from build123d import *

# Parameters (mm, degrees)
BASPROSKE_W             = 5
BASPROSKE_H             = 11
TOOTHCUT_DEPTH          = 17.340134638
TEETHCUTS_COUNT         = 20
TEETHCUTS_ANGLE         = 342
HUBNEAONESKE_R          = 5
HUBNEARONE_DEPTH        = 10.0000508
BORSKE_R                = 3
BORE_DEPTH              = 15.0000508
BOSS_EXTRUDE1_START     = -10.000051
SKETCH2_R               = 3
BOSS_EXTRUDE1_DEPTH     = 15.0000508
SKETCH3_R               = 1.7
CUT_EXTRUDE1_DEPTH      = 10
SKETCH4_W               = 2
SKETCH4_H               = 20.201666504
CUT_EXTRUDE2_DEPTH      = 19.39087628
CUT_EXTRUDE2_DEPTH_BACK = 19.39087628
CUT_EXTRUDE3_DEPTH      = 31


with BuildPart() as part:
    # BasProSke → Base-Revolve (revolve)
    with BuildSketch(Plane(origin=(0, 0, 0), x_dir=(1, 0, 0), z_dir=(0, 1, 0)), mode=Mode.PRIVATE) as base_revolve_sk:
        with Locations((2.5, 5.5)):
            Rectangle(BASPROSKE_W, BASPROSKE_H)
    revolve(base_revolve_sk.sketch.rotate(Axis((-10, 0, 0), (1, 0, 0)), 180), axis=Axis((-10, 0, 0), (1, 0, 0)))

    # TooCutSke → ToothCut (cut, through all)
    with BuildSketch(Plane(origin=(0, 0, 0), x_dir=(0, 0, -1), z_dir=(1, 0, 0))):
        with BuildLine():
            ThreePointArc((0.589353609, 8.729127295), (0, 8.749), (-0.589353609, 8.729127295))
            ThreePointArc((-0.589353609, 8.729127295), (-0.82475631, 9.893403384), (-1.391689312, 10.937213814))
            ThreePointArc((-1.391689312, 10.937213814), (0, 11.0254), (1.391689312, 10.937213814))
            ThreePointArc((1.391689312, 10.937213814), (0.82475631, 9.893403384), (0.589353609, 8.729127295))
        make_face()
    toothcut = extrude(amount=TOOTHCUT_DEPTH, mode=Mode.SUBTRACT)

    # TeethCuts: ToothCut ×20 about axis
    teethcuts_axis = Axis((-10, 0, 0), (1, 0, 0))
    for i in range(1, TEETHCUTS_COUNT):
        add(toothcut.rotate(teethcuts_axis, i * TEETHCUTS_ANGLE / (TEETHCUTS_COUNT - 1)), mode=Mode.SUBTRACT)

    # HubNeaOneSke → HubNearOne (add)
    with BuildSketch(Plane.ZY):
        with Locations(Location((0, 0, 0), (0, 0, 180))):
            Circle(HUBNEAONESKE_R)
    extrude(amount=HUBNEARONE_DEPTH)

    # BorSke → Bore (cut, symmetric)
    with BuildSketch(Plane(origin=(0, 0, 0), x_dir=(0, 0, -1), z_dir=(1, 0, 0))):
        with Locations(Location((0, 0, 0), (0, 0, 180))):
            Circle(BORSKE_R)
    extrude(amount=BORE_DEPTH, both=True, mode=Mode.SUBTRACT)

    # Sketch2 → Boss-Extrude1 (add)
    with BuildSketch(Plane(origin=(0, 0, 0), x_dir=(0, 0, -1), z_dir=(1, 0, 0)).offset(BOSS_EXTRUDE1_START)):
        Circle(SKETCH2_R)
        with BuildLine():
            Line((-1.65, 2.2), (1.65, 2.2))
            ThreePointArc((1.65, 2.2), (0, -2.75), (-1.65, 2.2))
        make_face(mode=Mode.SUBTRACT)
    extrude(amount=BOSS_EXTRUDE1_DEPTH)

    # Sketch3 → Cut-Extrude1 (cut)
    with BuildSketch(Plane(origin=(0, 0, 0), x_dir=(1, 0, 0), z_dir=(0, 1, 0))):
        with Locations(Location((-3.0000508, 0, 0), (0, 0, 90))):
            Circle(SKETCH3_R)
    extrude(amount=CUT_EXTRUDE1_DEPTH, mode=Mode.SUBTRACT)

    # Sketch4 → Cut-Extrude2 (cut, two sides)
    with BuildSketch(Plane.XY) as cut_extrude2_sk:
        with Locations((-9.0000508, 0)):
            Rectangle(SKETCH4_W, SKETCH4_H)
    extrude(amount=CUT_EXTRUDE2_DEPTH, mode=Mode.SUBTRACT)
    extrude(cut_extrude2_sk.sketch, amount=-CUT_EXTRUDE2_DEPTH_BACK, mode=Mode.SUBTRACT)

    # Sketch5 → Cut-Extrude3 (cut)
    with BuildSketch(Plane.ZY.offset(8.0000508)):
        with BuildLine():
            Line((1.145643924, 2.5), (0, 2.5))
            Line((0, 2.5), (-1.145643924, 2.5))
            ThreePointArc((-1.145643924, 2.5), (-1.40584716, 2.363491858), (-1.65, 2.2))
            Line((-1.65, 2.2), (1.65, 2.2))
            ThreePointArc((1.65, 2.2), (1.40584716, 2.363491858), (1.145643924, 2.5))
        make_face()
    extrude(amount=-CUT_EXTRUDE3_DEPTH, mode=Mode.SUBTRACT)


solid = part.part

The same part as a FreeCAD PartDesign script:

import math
import FreeCAD as App
import Part
import Sketcher
Q = App.Units.Quantity

doc = App.newDocument("Part")
body = doc.addObject("PartDesign::Body", "Body")

sketch1 = body.newObject("Sketcher::SketchObject", "Sketch")
sketch1.AttachmentSupport = (doc.getObject("XZ_Plane"), [""])
sketch1.MapMode = "FlatFace"
sketch1.addGeometry([
    Part.LineSegment(App.Vector(0, -11, 0), App.Vector(0, 0, 0)),
    Part.LineSegment(App.Vector(0, 0, 0), App.Vector(5, 0, 0)),
    Part.LineSegment(App.Vector(5, 0, 0), App.Vector(5, -11, 0)),
    Part.LineSegment(App.Vector(5, -11, 0), App.Vector(0, -11, 0)),
], False)
sketch1.addConstraint([
    Sketcher.Constraint("Coincident", 0, 2, 1, 1),
    Sketcher.Constraint("Coincident", 1, 2, 2, 1),
    Sketcher.Constraint("Coincident", 2, 2, 3, 1),
    Sketcher.Constraint("Coincident", 3, 2, 0, 1),
    Sketcher.Constraint("Vertical", 0),
    Sketcher.Constraint("Horizontal", 1),
    Sketcher.Constraint("Vertical", 2),
    Sketcher.Constraint("Horizontal", 3),
    Sketcher.Constraint("Coincident", 0, 2, -1, 1),
    Sketcher.Constraint("DistanceX", 1, 1, 1, 2, Q("5 mm")),
    Sketcher.Constraint("DistanceY", 0, 1, 0, 2, Q("11 mm")),
])
revolution = body.newObject("PartDesign::Revolution", "Revolution")
revolution.Profile = sketch1
revolution.ReferenceAxis = (sketch1, ["H_Axis"])
revolution.Angle = 360

sketch2 = body.newObject("Sketcher::SketchObject", "Sketch001")
sketch2.AttachmentSupport = (doc.getObject("YZ_Plane"), [""])
sketch2.MapMode = "FlatFace"
sketch2.addGeometry([
    Part.ArcOfCircle(Part.Circle(App.Vector(0, 0, 0), App.Vector(0, 0, 1), 8.749), math.radians(-3.862506), math.radians(3.862506)),
    Part.ArcOfCircle(Part.Circle(App.Vector(8.527341, -4.584261, 0), App.Vector(0, 0, 1), 4), math.radians(52.95312), math.radians(87.108393)),
    Part.ArcOfCircle(Part.Circle(App.Vector(0, 0, 0), App.Vector(0, 0, 1), 11.0254), math.radians(-7.251546), math.radians(7.251546)),
    Part.ArcOfCircle(Part.Circle(App.Vector(8.527341, 4.584261, 0), App.Vector(0, 0, 1), 4), math.radians(-87.108393), math.radians(-52.95312)),
], False)
sketch2.addConstraint([
    Sketcher.Constraint("Coincident", 0, 1, 1, 2),
    Sketcher.Constraint("Coincident", 1, 1, 2, 1),
    Sketcher.Constraint("Coincident", 2, 2, 3, 2),
    Sketcher.Constraint("Coincident", 3, 1, 0, 2),
    Sketcher.Constraint("Coincident", 0, 3, -1, 1),
    Sketcher.Constraint("Coincident", 2, 3, -1, 1),
    Sketcher.Constraint("Equal", 1, 3),
    Sketcher.Constraint("Symmetric", 1, 3, 3, 3, -1),
    Sketcher.Constraint("Radius", 1, Q("4 mm")),
    Sketcher.Constraint("Radius", 0, Q("8.749 mm")),
    Sketcher.Constraint("Radius", 2, Q("11.0254 mm")),
    Sketcher.Constraint("DistanceX", -1, 1, 1, 3, Q("8.527341 mm")),
    Sketcher.Constraint("DistanceY", 1, 3, -1, 1, Q("4.584261 mm")),
])
pocket1 = body.newObject("PartDesign::Pocket", "Pocket")
pocket1.Profile = sketch2
pocket1.Type = "ThroughAll"
pocket1.Reversed = True
doc.recompute()

polarpattern = body.newObject("PartDesign::PolarPattern", "PolarPattern")
polarpattern.Originals = [pocket1]
polarpattern.Axis = (doc.getObject("X_Axis"), [""])
polarpattern.Angle = 360
polarpattern.Occurrences = 20
body.Tip = polarpattern

sketch3 = body.newObject("Sketcher::SketchObject", "Sketch002")
sketch3.AttachmentSupport = (doc.getObject("YZ_Plane"), [""])
sketch3.MapMode = "FlatFace"
sketch3.addGeometry(Part.Circle(App.Vector(0, 0, 0), App.Vector(0, 0, 1), 5), False)
sketch3.addConstraint([
    Sketcher.Constraint("Coincident", 0, 3, -1, 1),
    Sketcher.Constraint("Diameter", 0, Q("10 mm")),
])
pad1 = body.newObject("PartDesign::Pad", "Pad")
pad1.Profile = sketch3
pad1.Length = 10.000051
pad1.Reversed = True

sketch4 = body.newObject("Sketcher::SketchObject", "Sketch003")
sketch4.AttachmentSupport = (doc.getObject("YZ_Plane"), [""])
sketch4.MapMode = "FlatFace"
sketch4.addGeometry(Part.Circle(App.Vector(0, 0, 0), App.Vector(0, 0, 1), 3), False)
sketch4.addConstraint([
    Sketcher.Constraint("Coincident", 0, 3, -1, 1),
    Sketcher.Constraint("Diameter", 0, Q("6 mm")),
])
pocket2 = body.newObject("PartDesign::Pocket", "Pocket001")
pocket2.Profile = sketch4
pocket2.Length = 30.000102
pocket2.Midplane = True

sketch5 = body.newObject("Sketcher::SketchObject", "Sketch004")
sketch5.AttachmentSupport = (doc.getObject("YZ_Plane"), [""])
sketch5.MapMode = "FlatFace"
sketch5.AttachmentOffset = App.Placement(App.Vector(0, 0, -10.000051), App.Rotation())
sketch5.addGeometry([
    Part.Circle(App.Vector(0, 0, 0), App.Vector(0, 0, 1), 3),
    Part.ArcOfCircle(Part.Circle(App.Vector(0, 0, 0), App.Vector(0, 0, 1), 2.75), math.radians(36.869898), math.radians(323.130102)),
    Part.LineSegment(App.Vector(2.2, 1.65, 0), App.Vector(2.2, -1.65, 0)),
], False)
sketch5.addConstraint([
    Sketcher.Constraint("Coincident", 1, 1, 2, 1),
    Sketcher.Constraint("Coincident", 2, 2, 1, 2),
    Sketcher.Constraint("Vertical", 2),
    Sketcher.Constraint("Coincident", 0, 3, -1, 1),
    Sketcher.Constraint("Coincident", 1, 3, -1, 1),
    Sketcher.Constraint("Diameter", 0, Q("6 mm")),
    Sketcher.Constraint("Radius", 1, Q("2.75 mm")),
    Sketcher.Constraint("DistanceY", 2, 2, 2, 1, Q("3.3 mm")),
])
pad2 = body.newObject("PartDesign::Pad", "Pad001")
pad2.Profile = sketch5
pad2.Length = 15.000051

sketch6 = body.newObject("Sketcher::SketchObject", "Sketch005")
sketch6.AttachmentSupport = (doc.getObject("XZ_Plane"), [""])
sketch6.MapMode = "FlatFace"
sketch6.addGeometry(Part.Circle(App.Vector(-3.000051, 0, 0), App.Vector(0, 0, 1), 1.7), False)
sketch6.addConstraint([
    Sketcher.Constraint("PointOnObject", 0, 3, -1),
    Sketcher.Constraint("Diameter", 0, Q("3.4 mm")),
    Sketcher.Constraint("DistanceX", 0, 3, -1, 1, Q("3.000051 mm")),
])
pocket3 = body.newObject("PartDesign::Pocket", "Pocket002")
pocket3.Profile = sketch6
pocket3.Length = 10

sketch7 = body.newObject("Sketcher::SketchObject", "Sketch006")
sketch7.AttachmentSupport = (doc.getObject("XY_Plane"), [""])
sketch7.MapMode = "FlatFace"
sketch7.addGeometry([
    Part.LineSegment(App.Vector(-10.000051, 10.100833, 0), App.Vector(-10.000051, -10.100833, 0)),
    Part.LineSegment(App.Vector(-10.000051, -10.100833, 0), App.Vector(-8.000051, -10.100833, 0)),
    Part.LineSegment(App.Vector(-8.000051, -10.100833, 0), App.Vector(-8.000051, 10.100833, 0)),
    Part.LineSegment(App.Vector(-8.000051, 10.100833, 0), App.Vector(-10.000051, 10.100833, 0)),
], False)
sketch7.addConstraint([
    Sketcher.Constraint("Coincident", 0, 2, 1, 1),
    Sketcher.Constraint("Coincident", 1, 2, 2, 1),
    Sketcher.Constraint("Coincident", 2, 2, 3, 1),
    Sketcher.Constraint("Coincident", 3, 2, 0, 1),
    Sketcher.Constraint("Vertical", 0),
    Sketcher.Constraint("Horizontal", 1),
    Sketcher.Constraint("Vertical", 2),
    Sketcher.Constraint("Horizontal", 3),
    Sketcher.Constraint("DistanceX", 1, 1, 1, 2, Q("2 mm")),
    Sketcher.Constraint("DistanceY", 0, 2, 0, 1, Q("20.201667 mm")),
    Sketcher.Constraint("DistanceX", 0, 2, -1, 1, Q("10.000051 mm")),
    Sketcher.Constraint("DistanceY", 0, 2, -1, 1, Q("10.100833 mm")),
])
pocket4 = body.newObject("PartDesign::Pocket", "Pocket003")
pocket4.Profile = sketch7
pocket4.Type = "ThroughAll"
pocket4.Midplane = True

sketch8 = body.newObject("Sketcher::SketchObject", "Sketch007")
sketch8.AttachmentSupport = (doc.getObject("YZ_Plane"), [""])
sketch8.MapMode = "FlatFace"
sketch8.AttachmentOffset = App.Placement(App.Vector(0, 0, -8.000051), App.Rotation())
sketch8.addGeometry([
    Part.LineSegment(App.Vector(2.5, 1.145644, 0), App.Vector(2.5, -1.145644, 0)),
    Part.ArcOfCircle(Part.Circle(App.Vector(0, 0, 0), App.Vector(0, 0, 1), 2.75), math.radians(-36.869898), math.radians(-24.619977)),
    Part.LineSegment(App.Vector(2.2, -1.65, 0), App.Vector(2.2, 1.65, 0)),
    Part.ArcOfCircle(Part.Circle(App.Vector(0, 0, 0), App.Vector(0, 0, 1), 2.75), math.radians(24.619977), math.radians(36.869898)),
], False)
sketch8.addConstraint([
    Sketcher.Constraint("Coincident", 0, 2, 1, 2),
    Sketcher.Constraint("Coincident", 1, 1, 2, 1),
    Sketcher.Constraint("Coincident", 2, 2, 3, 2),
    Sketcher.Constraint("Coincident", 3, 1, 0, 1),
    Sketcher.Constraint("Vertical", 0),
    Sketcher.Constraint("Vertical", 2),
    Sketcher.Constraint("Coincident", 1, 3, -1, 1),
    Sketcher.Constraint("Coincident", 3, 3, -1, 1),
    Sketcher.Constraint("Equal", 1, 3),
    Sketcher.Constraint("Radius", 1, Q("2.75 mm")),
    Sketcher.Constraint("DistanceY", 2, 1, 2, 2, Q("3.3 mm")),
    Sketcher.Constraint("DistanceX", -1, 1, 0, 2, Q("2.5 mm")),
])
pocket5 = body.newObject("PartDesign::Pocket", "Pocket004")
pocket5.Profile = sketch8
pocket5.Length = 31
pocket5.Reversed = True

doc.recompute()
